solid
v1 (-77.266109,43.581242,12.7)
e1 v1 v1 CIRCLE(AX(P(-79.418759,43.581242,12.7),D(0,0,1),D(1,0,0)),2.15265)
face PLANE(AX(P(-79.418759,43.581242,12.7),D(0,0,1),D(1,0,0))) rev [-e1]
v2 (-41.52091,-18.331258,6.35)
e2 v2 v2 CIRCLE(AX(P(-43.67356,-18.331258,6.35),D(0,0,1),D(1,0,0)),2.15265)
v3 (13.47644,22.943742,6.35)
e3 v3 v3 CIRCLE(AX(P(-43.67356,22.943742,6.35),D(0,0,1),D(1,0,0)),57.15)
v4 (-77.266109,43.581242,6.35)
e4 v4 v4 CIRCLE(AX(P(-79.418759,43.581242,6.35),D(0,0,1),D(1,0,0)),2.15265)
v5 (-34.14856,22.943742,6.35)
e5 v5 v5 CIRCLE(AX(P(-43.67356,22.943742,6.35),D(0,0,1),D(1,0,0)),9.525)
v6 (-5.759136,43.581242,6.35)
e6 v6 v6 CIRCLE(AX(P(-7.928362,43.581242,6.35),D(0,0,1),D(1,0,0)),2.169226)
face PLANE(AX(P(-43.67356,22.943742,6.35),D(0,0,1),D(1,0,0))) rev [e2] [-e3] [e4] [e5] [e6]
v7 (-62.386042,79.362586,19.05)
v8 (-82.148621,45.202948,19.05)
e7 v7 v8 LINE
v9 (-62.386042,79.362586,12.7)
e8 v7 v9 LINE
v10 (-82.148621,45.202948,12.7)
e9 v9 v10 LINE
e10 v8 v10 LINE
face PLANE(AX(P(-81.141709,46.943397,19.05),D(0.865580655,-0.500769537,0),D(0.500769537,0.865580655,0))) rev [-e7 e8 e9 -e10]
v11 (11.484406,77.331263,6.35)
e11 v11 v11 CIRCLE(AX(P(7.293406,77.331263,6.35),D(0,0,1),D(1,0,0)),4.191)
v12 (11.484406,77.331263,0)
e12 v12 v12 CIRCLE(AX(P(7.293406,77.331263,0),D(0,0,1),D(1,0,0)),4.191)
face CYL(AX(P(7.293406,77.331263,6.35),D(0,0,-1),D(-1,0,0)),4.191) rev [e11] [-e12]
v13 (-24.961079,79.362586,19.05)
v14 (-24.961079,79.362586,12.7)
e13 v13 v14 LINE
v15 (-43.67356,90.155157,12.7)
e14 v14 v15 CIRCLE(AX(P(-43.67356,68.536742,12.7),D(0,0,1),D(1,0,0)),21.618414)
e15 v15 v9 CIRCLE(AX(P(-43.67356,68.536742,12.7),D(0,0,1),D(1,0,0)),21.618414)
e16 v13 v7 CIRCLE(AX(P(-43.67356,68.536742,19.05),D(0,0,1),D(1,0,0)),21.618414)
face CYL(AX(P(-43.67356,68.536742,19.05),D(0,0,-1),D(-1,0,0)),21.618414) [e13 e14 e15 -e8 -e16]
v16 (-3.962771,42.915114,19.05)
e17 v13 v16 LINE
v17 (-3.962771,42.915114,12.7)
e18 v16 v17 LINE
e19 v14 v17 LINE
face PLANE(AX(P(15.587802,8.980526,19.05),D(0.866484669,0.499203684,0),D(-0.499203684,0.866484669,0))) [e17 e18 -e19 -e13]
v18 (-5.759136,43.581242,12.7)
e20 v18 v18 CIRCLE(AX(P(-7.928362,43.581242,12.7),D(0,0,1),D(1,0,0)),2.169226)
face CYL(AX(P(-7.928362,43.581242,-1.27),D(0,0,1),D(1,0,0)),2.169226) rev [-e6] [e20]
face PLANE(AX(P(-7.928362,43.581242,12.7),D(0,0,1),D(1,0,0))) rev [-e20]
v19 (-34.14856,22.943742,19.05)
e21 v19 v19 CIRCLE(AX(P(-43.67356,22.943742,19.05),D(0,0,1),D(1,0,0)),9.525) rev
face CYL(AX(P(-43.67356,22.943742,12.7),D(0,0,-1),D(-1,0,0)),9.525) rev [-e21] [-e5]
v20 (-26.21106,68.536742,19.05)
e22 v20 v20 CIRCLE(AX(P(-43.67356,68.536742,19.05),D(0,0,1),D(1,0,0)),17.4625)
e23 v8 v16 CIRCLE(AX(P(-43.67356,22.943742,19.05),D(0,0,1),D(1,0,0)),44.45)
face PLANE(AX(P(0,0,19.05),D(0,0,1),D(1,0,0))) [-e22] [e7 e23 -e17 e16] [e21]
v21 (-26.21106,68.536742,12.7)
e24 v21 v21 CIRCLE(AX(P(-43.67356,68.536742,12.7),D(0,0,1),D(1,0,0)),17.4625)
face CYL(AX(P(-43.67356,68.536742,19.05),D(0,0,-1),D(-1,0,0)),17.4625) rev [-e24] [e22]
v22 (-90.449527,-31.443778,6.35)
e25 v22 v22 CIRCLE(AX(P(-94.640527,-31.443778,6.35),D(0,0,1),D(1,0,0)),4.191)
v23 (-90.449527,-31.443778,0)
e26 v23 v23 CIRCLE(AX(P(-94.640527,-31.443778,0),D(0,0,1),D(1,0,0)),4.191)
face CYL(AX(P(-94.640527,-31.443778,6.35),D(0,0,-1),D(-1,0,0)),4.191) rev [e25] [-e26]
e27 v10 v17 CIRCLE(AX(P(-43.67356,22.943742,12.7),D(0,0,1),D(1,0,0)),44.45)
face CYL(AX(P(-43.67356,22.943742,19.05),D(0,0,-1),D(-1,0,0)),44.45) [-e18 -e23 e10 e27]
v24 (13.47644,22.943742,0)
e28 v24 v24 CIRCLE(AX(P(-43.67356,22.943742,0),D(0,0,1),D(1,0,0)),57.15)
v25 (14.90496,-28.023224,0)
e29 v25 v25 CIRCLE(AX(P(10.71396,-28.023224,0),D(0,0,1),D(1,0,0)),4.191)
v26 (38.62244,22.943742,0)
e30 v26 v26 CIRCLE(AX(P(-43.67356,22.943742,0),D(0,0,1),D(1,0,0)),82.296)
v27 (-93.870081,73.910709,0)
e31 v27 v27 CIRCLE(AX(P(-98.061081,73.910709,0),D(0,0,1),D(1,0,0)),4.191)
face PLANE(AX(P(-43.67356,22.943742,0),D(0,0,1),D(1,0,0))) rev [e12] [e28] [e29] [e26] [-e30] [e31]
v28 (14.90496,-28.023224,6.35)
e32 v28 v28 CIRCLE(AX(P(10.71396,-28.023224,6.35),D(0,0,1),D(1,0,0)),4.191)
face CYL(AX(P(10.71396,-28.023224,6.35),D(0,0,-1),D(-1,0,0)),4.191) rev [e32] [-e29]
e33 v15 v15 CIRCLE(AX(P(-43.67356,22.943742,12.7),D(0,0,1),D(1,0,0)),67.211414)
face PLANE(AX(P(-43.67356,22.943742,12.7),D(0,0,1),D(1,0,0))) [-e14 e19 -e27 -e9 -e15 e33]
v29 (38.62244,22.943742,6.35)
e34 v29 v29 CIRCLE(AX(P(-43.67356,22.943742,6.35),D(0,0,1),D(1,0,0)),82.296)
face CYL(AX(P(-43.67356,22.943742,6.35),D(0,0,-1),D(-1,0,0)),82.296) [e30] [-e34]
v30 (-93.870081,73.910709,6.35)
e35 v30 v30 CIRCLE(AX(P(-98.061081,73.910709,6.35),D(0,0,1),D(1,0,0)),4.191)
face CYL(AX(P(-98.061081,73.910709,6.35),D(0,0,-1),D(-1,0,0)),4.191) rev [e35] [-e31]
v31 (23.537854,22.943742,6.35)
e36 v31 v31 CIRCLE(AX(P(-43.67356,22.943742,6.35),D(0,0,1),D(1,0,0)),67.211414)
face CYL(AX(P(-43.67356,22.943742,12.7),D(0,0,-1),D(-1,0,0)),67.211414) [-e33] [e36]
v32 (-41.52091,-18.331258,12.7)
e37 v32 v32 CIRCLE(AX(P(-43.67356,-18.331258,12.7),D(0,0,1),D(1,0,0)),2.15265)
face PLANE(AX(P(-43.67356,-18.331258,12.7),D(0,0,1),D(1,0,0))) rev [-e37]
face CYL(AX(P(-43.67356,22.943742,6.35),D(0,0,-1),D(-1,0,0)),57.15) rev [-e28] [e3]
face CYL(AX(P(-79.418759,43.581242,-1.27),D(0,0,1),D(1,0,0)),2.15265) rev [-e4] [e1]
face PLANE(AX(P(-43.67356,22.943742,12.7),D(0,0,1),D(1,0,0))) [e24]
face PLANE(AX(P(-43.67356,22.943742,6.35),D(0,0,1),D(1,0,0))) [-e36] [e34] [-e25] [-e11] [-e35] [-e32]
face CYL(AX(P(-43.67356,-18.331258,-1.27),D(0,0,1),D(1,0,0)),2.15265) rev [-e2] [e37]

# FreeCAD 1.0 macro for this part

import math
import FreeCAD as App
import Part
import Sketcher
Q = App.Units.Quantity

doc = App.newDocument("Part")
body = doc.addObject("PartDesign::Body", "Body")

sketch1 = body.newObject("Sketcher::SketchObject", "Sketch")
sketch1.AttachmentSupport = (doc.getObject("XY_Plane"), [""])
sketch1.MapMode = "FlatFace"
sketch1.addGeometry(Part.Circle(App.Vector(-43.7, 22.9, 0), App.Vector(0, 0, 1), 82.3), False)
sketch1.addGeometry(Part.Circle(App.Vector(-94.6, -31.4, 0), App.Vector(0, 0, 1), 4.2), False)
sketch1.addGeometry(Part.Circle(App.Vector(10.7, -28, 0), App.Vector(0, 0, 1), 4.2), False)
sketch1.addGeometry(Part.Circle(App.Vector(-98.1, 73.9, 0), App.Vector(0, 0, 1), 4.2), False)
sketch1.addGeometry(Part.Circle(App.Vector(-43.7, 22.9, 0), App.Vector(0, 0, 1), 57.1), False)
sketch1.addGeometry(Part.Circle(App.Vector(7.3, 77.3, 0), App.Vector(0, 0, 1), 4.2), False)
sketch1.addConstraint(Sketcher.Constraint("Coincident", 4, 3, 0, 3))
sketch1.addConstraint(Sketcher.Constraint("Equal", 1, 2))
sketch1.addConstraint(Sketcher.Constraint("Equal", 2, 3))
sketch1.addConstraint(Sketcher.Constraint("Equal", 3, 5))
sketch1.addConstraint(Sketcher.Constraint("Diameter", 4, Q("4.5 in")))
sketch1.addConstraint(Sketcher.Constraint("Diameter", 0, Q("6.48 in")))
sketch1.addConstraint(Sketcher.Constraint("Diameter", 1, Q("0.33 in")))
sketch1.addConstraint(Sketcher.Constraint("DistanceX", 0, 3, -1, 1, 43.67356))
sketch1.addConstraint(Sketcher.Constraint("DistanceY", 1, 3, -1, 1, 31.443778))
sketch1.addConstraint(Sketcher.Constraint("DistanceX", -1, 1, 2, 3, 10.71396))
sketch1.addConstraint(Sketcher.Constraint("DistanceX", 3, 3, -1, 1, 98.061081))
sketch1.addConstraint(Sketcher.Constraint("DistanceY", -1, 1, 3, 3, 73.910709))
sketch1.addConstraint(Sketcher.Constraint("DistanceY", 1, 3, 0, 3, 54.38752))
sketch1.addConstraint(Sketcher.Constraint("DistanceY", 0, 3, 5, 3, 54.38752))
sketch1.addConstraint(Sketcher.Constraint("DistanceX", 1, 3, -1, 1, 94.640527))
sketch1.addConstraint(Sketcher.Constraint("DistanceY", 2, 3, -1, 1, 28.023224))
sketch1.addConstraint(Sketcher.Constraint("DistanceX", -1, 1, 5, 3, 7.293406))
pad1 = body.newObject("PartDesign::Pad", "Pad")
pad1.Profile = sketch1
pad1.Length = Q("0.25 in")

sketch2 = body.newObject("Sketcher::SketchObject", "Sketch001")
sketch2.AttachmentSupport = (doc.getObject("XY_Plane"), [""])
sketch2.MapMode = "FlatFace"
sketch2.AttachmentOffset = App.Placement(App.Vector(0, 0, 0.25 * 25.4), App.Rotation())
sketch2.addGeometry(Part.Circle(App.Vector(-44, 23, 0), App.Vector(0, 0, 1), 67), False)
sketch2.addGeometry(Part.Circle(App.Vector(-44, 23, 0), App.Vector(0, 0, 1), 10), False)
sketch2.addConstraint(Sketcher.Constraint("Coincident", 1, 3, 0, 3))
sketch2.addConstraint(Sketcher.Constraint("Diameter", 1, Q("0.75 in")))
sketch2.addConstraint(Sketcher.Constraint("Diameter", 0, 134.422829))
sketch2.addConstraint(Sketcher.Constraint("DistanceX", 0, 3, -1, 1, 43.67356))
sketch2.addConstraint(Sketcher.Constraint("DistanceY", -1, 1, 0, 3, 22.943742))
pad2 = body.newObject("PartDesign::Pad", "Pad001")
pad2.Profile = sketch2
pad2.Length = Q("0.25 in")

sketch3 = body.newObject("Sketcher::SketchObject", "Sketch002")
sketch3.AttachmentSupport = (doc.getObject("XY_Plane"), [""])
sketch3.MapMode = "FlatFace"
sketch3.AttachmentOffset = App.Placement(App.Vector(0, 0, 0.5 * 25.4), App.Rotation())
sketch3.addGeometry(Part.LineSegment(App.Vector(-4, 43, 0), App.Vector(-25, 79, 0)), False)
sketch3.addGeometry(Part.ArcOfCircle(Part.Circle(App.Vector(-44, 69, 0), App.Vector(0, 0, 1), 22), math.radians(30), math.radians(150)), False)
sketch3.addGeometry(Part.LineSegment(App.Vector(-62, 79, 0), App.Vector(-82, 45, 0)), False)
sketch3.addGeometry(Part.ArcOfCircle(Part.Circle(App.Vector(-44, 23, 0), App.Vector(0, 0, 1), 44), math.radians(150), math.radians(387)), False)
sketch3.addGeometry(Part.Circle(App.Vector(-44, 23, 0), App.Vector(0, 0, 1), 10), False)
sketch3.addGeometry(Part.Circle(App.Vector(-44, 69, 0), App.Vector(0, 0, 1), 17), False)
sketch3.addConstraint(Sketcher.Constraint("Coincident", 0, 2, 1, 1))
sketch3.addConstraint(Sketcher.Constraint("Tangent", 1, 2, 2, 1))
sketch3.addConstraint(Sketcher.Constraint("Tangent", 2, 2, 3, 1))
sketch3.addConstraint(Sketcher.Constraint("Coincident", 3, 2, 0, 1))
sketch3.addConstraint(Sketcher.Constraint("Coincident", 4, 3, 3, 3))
sketch3.addConstraint(Sketcher.Constraint("Coincident", 5, 3, 1, 3))
sketch3.addConstraint(Sketcher.Constraint("Horizontal", 0, 2, 1, 2))
sketch3.addConstraint(Sketcher.Constraint("Vertical", 1, 3, 3, 3))
sketch3.addConstraint(Sketcher.Constraint("Diameter", 4, Q("0.75 in")))
sketch3.addConstraint(Sketcher.Constraint("Radius", 3, Q("1.75 in")))
sketch3.addConstraint(Sketcher.Constraint("Diameter", 5, Q("1.375 in")))
sketch3.addConstraint(Sketcher.Constraint("DistanceY", 3, 3, 1, 3, Q("1.795 in")))
sketch3.addConstraint(Sketcher.Constraint("Radius", 1, 21.618414))
sketch3.addConstraint(Sketcher.Constraint("Distance", 0, 42.063609))
sketch3.addConstraint(Sketcher.Constraint("DistanceX", 1, 3, -1, 1, 43.67356))
sketch3.addConstraint(Sketcher.Constraint("DistanceY", -1, 1, 2, 2, 45.202948))
pad3 = body.newObject("PartDesign::Pad", "Pad002")
pad3.Profile = sketch3
pad3.Length = Q("0.25 in")

sketch4 = body.newObject("Sketcher::SketchObject", "Sketch003")
sketch4.AttachmentSupport = (doc.getObject("XY_Plane"), [""])
sketch4.MapMode = "FlatFace"
sketch4.AttachmentOffset = App.Placement(App.Vector(0, 0, 0.5 * 25.4), App.Rotation())
sketch4.addGeometry(Part.Circle(App.Vector(-79.4, 43.6, 0), App.Vector(0, 0, 1), 2.2), False)
sketch4.addGeometry(Part.Circle(App.Vector(-7.9, 43.6, 0), App.Vector(0, 0, 1), 2.2), False)
sketch4.addGeometry(Part.Circle(App.Vector(-43.7, -18.3, 0), App.Vector(0, 0, 1), 2.2), False)
sketch4.addConstraint(Sketcher.Constraint("Equal", 0, 2))
sketch4.addConstraint(Sketcher.Constraint("Horizontal", 0, 3, 1, 3))
sketch4.addConstraint(Sketcher.Constraint("Diameter", 0, Q("0.1695 in")))
sketch4.addConstraint(Sketcher.Constraint("DistanceY", 2, 3, 0, 3, Q("2.4375 in")))
sketch4.addConstraint(Sketcher.Constraint("Diameter", 1, 4.338453))
sketch4.addConstraint(Sketcher.Constraint("DistanceX", 0, 3, 2, 3, 35.745199))
sketch4.addConstraint(Sketcher.Constraint("DistanceX", 2, 3, 1, 3, 35.745199))
sketch4.addConstraint(Sketcher.Constraint("DistanceX", 0, 3, -1, 1, 79.418759))
sketch4.addConstraint(Sketcher.Constraint("DistanceY", -1, 1, 0, 3, 43.581242))
pocket1 = body.newObject("PartDesign::Pocket", "Pocket")
pocket1.Profile = sketch4
pocket1.Length = Q("0.55 in")

doc.recompute()
